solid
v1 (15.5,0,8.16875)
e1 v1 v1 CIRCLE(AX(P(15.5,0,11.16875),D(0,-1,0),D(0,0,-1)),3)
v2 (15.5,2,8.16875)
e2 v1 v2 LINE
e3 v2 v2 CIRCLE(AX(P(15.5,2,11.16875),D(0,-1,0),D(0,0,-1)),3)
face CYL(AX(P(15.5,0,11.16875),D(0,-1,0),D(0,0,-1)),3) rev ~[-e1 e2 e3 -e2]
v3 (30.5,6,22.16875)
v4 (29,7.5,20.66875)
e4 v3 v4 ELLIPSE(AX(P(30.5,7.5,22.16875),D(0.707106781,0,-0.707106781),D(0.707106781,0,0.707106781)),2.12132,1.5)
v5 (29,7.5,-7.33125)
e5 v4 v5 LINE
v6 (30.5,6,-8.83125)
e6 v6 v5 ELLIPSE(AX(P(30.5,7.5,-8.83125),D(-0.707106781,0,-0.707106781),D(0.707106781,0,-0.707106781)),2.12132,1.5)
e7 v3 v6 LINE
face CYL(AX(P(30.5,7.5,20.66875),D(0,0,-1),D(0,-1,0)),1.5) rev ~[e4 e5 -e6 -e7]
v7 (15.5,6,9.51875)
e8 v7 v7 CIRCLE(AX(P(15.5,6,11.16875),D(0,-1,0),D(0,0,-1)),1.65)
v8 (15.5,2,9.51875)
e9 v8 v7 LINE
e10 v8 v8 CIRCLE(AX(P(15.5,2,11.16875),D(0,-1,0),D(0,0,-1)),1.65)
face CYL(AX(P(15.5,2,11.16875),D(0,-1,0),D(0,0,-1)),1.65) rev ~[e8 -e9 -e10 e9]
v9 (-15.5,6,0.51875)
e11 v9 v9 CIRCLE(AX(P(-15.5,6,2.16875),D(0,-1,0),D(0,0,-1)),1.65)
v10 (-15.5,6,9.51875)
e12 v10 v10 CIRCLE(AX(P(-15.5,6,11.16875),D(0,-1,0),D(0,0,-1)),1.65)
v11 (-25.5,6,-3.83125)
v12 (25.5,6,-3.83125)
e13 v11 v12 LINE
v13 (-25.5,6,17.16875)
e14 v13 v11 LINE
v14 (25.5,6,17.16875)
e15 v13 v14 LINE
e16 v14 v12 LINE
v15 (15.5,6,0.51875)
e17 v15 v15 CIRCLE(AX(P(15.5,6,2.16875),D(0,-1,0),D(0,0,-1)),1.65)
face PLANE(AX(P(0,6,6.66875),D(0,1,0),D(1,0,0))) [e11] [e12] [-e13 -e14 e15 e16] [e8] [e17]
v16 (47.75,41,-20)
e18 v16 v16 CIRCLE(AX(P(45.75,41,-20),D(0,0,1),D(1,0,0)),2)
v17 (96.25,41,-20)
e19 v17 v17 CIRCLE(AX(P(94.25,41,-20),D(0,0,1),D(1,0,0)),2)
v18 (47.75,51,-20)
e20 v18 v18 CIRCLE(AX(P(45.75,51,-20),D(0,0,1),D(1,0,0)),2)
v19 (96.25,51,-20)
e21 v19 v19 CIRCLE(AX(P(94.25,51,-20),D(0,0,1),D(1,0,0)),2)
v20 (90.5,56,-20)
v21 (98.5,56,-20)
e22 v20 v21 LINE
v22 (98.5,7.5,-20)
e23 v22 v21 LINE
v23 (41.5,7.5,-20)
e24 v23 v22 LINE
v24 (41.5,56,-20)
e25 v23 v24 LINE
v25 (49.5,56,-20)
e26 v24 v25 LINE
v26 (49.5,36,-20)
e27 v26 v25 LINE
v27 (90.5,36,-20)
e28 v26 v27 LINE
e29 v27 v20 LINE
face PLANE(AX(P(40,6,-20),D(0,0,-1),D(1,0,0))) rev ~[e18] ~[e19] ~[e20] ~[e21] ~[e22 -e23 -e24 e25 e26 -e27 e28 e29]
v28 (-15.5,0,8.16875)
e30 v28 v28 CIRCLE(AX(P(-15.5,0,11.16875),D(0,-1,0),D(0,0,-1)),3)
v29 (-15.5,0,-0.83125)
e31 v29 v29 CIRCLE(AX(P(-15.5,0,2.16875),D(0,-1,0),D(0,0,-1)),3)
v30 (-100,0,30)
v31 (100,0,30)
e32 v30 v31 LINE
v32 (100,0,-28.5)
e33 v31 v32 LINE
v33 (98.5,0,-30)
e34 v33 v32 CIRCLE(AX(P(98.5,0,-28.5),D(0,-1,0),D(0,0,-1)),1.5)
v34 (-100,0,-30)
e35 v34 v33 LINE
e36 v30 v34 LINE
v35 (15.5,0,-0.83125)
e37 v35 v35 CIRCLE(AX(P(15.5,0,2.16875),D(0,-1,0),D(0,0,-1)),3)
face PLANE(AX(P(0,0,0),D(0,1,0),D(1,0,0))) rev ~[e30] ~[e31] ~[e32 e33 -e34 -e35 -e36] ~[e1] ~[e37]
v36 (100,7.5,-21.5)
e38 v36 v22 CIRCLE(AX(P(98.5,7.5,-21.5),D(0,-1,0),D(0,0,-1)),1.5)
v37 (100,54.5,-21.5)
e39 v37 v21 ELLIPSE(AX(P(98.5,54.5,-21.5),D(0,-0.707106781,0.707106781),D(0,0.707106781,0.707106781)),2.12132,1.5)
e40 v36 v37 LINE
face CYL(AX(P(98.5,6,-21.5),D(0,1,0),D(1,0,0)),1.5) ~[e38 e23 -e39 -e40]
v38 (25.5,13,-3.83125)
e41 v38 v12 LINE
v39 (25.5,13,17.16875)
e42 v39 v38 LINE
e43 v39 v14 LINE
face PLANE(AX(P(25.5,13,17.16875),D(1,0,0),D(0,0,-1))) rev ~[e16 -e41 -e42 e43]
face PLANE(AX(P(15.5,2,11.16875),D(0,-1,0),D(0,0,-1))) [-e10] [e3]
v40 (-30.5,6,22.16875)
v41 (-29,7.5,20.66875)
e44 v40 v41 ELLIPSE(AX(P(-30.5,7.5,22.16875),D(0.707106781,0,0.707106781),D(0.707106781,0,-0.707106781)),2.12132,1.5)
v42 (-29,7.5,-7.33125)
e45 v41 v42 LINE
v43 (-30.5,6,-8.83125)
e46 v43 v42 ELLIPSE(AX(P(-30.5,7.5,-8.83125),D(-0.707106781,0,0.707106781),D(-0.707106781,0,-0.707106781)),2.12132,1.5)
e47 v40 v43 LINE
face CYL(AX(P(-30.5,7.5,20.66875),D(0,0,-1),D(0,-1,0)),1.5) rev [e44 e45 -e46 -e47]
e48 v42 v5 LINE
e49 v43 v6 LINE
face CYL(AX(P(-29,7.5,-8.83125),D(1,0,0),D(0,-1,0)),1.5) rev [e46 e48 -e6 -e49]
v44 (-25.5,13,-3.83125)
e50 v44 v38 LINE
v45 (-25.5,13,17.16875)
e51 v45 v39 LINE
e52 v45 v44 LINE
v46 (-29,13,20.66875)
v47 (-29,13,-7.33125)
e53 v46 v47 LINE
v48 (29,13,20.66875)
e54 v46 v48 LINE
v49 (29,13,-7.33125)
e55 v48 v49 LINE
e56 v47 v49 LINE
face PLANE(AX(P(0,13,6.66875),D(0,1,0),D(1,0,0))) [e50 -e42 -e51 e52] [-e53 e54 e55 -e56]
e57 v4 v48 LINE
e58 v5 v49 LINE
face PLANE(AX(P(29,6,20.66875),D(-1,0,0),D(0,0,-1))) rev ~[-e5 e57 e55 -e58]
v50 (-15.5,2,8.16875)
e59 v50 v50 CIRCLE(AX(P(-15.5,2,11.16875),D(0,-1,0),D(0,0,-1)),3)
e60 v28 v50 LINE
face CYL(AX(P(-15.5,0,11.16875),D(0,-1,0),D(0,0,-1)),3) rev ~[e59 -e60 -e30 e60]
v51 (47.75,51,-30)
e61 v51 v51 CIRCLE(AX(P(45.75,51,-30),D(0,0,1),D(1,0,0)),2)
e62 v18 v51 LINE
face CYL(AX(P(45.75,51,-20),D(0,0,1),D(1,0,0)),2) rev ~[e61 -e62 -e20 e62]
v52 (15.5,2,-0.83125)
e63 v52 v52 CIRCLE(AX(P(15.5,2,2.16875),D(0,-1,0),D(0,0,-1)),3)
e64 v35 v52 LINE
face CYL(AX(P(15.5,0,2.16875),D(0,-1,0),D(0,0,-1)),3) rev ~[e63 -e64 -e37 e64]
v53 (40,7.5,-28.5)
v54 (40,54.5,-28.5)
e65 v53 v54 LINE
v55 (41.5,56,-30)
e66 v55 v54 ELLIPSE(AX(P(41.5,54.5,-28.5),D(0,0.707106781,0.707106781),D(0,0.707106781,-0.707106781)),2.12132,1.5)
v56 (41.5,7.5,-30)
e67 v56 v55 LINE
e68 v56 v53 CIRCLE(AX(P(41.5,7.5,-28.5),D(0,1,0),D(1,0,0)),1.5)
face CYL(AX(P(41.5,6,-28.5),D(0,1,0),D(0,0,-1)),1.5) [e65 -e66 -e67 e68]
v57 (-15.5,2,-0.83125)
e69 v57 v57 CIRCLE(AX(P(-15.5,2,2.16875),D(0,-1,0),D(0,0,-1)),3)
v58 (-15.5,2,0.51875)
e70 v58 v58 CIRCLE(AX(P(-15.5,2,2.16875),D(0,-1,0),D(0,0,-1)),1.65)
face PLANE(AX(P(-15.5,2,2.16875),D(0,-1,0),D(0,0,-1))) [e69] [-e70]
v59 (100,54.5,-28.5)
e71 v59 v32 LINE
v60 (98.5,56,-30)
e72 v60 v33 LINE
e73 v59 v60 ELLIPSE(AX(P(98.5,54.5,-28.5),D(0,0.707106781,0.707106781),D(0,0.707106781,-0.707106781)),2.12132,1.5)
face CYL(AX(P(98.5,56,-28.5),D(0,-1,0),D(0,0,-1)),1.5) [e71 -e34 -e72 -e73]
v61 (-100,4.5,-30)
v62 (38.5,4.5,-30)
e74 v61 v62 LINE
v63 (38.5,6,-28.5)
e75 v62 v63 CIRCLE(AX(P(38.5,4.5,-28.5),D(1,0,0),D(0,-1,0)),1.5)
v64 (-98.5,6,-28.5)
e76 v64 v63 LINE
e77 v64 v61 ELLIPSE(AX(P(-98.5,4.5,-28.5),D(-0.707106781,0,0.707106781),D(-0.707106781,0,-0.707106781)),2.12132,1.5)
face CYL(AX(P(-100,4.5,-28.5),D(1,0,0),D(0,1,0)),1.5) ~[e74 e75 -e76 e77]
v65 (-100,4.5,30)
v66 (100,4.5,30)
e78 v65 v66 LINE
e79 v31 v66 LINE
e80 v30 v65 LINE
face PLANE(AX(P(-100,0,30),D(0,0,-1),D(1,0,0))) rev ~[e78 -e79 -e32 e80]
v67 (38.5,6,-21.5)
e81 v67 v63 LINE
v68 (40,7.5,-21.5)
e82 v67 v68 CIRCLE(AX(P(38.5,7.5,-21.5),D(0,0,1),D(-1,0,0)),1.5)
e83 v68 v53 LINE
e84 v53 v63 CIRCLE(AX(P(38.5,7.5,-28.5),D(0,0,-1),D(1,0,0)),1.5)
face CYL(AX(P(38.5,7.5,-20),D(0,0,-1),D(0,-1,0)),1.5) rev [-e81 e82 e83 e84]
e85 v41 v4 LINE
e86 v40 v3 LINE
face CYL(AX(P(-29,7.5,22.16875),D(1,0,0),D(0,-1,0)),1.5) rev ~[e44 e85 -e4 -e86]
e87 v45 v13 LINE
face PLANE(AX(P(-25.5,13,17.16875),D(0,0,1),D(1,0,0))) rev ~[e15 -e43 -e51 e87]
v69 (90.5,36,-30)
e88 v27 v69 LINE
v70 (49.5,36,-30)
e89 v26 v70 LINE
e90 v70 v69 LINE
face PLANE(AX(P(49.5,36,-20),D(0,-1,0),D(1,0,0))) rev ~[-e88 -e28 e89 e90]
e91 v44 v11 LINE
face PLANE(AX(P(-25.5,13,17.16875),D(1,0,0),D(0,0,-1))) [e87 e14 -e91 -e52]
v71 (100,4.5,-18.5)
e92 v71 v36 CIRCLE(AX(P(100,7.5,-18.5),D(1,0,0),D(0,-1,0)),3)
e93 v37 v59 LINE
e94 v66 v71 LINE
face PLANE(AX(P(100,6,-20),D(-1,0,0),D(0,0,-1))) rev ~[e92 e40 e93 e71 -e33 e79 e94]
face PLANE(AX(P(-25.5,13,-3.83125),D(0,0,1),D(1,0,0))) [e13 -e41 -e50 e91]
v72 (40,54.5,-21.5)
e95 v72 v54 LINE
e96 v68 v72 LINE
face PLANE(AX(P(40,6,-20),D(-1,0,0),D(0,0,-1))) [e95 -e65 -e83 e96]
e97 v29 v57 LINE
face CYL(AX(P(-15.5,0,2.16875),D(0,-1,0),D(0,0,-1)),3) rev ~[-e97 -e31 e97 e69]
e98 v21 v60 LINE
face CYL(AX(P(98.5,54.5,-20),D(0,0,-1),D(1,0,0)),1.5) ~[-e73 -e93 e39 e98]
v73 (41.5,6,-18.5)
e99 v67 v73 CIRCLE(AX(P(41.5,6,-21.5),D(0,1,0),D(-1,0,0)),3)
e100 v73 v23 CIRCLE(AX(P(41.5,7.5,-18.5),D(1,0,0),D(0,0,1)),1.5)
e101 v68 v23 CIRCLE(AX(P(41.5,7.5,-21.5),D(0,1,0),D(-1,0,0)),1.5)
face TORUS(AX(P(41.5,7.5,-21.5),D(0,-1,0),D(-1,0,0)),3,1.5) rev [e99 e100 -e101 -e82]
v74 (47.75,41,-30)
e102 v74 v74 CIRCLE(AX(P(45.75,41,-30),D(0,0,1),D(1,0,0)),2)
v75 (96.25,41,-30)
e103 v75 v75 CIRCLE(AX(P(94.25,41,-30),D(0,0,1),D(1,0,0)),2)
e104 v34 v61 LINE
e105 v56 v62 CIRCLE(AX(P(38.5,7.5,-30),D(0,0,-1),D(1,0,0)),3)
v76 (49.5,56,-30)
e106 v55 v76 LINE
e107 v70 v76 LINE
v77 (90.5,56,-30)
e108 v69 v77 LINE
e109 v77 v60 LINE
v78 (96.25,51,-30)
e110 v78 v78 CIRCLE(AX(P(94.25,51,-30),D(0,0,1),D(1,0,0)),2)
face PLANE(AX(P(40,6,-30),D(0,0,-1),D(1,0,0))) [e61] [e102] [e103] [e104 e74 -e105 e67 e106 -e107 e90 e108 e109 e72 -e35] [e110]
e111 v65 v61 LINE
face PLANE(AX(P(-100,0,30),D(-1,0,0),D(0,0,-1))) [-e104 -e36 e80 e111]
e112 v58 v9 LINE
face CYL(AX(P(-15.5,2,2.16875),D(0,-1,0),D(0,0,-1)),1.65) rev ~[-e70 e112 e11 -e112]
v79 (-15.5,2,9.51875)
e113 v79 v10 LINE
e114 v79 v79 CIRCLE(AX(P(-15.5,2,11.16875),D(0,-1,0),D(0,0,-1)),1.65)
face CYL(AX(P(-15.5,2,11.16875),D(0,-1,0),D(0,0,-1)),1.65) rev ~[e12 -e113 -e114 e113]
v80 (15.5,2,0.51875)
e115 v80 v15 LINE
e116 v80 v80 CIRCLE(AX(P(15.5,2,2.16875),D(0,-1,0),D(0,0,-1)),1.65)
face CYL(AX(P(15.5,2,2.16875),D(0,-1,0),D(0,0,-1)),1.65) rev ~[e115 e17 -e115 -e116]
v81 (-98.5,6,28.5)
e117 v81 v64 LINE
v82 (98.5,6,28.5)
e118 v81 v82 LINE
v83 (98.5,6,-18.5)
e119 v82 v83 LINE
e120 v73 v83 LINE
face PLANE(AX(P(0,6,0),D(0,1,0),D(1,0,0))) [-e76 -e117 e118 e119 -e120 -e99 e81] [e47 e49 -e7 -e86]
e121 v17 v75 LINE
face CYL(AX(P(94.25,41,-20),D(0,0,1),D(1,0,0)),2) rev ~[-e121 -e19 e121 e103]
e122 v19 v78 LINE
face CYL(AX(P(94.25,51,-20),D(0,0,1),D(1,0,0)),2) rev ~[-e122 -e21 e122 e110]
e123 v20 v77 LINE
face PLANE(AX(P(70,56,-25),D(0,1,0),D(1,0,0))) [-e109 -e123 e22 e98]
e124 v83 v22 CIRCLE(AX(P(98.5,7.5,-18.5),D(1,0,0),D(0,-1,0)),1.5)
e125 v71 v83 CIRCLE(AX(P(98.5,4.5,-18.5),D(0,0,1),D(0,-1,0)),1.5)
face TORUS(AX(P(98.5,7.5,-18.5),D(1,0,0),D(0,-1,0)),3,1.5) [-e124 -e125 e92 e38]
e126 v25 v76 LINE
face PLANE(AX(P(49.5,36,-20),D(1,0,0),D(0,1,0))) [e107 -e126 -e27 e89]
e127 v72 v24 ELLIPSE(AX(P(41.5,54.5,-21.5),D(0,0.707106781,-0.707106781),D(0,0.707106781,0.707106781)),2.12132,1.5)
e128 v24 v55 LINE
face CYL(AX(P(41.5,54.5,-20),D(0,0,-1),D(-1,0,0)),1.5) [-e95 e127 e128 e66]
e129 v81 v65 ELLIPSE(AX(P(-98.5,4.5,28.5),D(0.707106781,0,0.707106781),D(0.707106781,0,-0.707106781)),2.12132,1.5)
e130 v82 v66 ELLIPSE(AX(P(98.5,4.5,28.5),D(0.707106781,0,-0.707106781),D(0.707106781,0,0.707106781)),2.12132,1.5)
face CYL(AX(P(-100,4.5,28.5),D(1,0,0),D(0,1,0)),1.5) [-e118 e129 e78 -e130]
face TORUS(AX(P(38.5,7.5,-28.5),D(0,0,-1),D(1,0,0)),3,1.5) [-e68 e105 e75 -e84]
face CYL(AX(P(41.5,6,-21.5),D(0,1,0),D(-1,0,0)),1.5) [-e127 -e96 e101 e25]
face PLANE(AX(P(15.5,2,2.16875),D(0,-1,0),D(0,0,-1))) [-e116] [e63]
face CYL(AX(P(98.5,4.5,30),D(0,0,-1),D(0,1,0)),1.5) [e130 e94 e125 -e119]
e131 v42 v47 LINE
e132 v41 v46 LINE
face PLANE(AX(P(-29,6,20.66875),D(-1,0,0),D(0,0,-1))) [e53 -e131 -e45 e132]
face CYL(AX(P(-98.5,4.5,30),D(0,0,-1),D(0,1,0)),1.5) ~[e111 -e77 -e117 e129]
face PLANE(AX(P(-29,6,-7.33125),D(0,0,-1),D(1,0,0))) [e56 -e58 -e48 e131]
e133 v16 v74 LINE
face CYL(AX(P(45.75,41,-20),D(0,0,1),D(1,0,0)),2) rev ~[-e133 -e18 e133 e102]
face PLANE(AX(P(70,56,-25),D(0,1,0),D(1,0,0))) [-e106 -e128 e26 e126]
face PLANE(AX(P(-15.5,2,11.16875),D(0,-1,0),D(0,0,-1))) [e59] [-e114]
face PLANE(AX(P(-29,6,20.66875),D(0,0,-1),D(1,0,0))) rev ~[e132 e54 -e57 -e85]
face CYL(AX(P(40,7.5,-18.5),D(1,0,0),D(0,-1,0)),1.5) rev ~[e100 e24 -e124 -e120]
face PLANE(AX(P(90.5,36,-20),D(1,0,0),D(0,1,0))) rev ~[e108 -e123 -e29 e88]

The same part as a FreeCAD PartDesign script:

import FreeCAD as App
import Part
import Sketcher

V = App.Vector


def edges_at(feature, points):
    """Names of the edges that pass closest to the given points."""
    edges = feature.Shape.Edges
    near = lambda p: min(range(len(edges)), key=lambda i: edges[i].distToShape(Part.Vertex(*p))[0])
    return sorted({f"Edge{near(p) + 1}" for p in points})


def add_polygon(sketch, points):
    """Adds a closed chain of lines whose ends are joined by coincident constraints."""
    first, n = sketch.GeometryCount, len(points)
    for a, b in zip(points, points[1:] + points[:1]):
        sketch.addGeometry(Part.LineSegment(App.Vector(*a, 0), App.Vector(*b, 0)), False)
    for i in range(n):
        sketch.addConstraint(Sketcher.Constraint("Coincident", first + i, 2, first + (i + 1) % n, 1))

doc = App.newDocument("Part")
body = doc.addObject("PartDesign::Body", "Body")

sketch1 = doc.addObject("Sketcher::SketchObject", "Sketch")
body.addObject(sketch1)
sketch1.AttachmentSupport = (doc.XZ_Plane, [""])
sketch1.MapMode = "FlatFace"
add_polygon(sketch1, [(-100, -30), (-100, 30), (100, 30), (100, -30)])
sketch1.addConstraint(Sketcher.Constraint("Vertical", 0))
sketch1.addConstraint(Sketcher.Constraint("Horizontal", 1))
sketch1.addConstraint(Sketcher.Constraint("Vertical", 2))
sketch1.addConstraint(Sketcher.Constraint("Horizontal", 3))
sketch1.addConstraint(Sketcher.Constraint("Symmetric", 0, 2, 2, 2, -1, 1))
sketch1.addConstraint(Sketcher.Constraint("DistanceX", 1, 1, 1, 2, 200.0))
sketch1.addConstraint(Sketcher.Constraint("DistanceY", 0, 1, 0, 2, 60.0))
pad1 = doc.addObject("PartDesign::Pad", "Pad")
body.addObject(pad1)
pad1.Profile = sketch1
pad1.Length = 6
pad1.Reversed = True

sketch2 = doc.addObject("Sketcher::SketchObject", "Sketch001")
body.addObject(sketch2)
sketch2.AttachmentSupport = (doc.XZ_Plane, [""])
sketch2.MapMode = "FlatFace"
sketch2.AttachmentOffset = App.Placement(V(0, 0, -6), App.Rotation())
add_polygon(sketch2, [(40, -30), (40, -20), (100, -20), (100, -30)])
sketch2.addConstraint(Sketcher.Constraint("Vertical", 0))
sketch2.addConstraint(Sketcher.Constraint("Horizontal", 1))
sketch2.addConstraint(Sketcher.Constraint("Vertical", 2))
sketch2.addConstraint(Sketcher.Constraint("Horizontal", 3))
sketch2.addConstraint(Sketcher.Constraint("DistanceX", 1, 1, 1, 2, 60.0))
sketch2.addConstraint(Sketcher.Constraint("DistanceY", 0, 1, 0, 2, 10.0))
sketch2.addConstraint(Sketcher.Constraint("DistanceX", -1, 1, 0, 2, 40.0))
sketch2.addConstraint(Sketcher.Constraint("DistanceY", 0, 2, -1, 1, 20.0))
pad2 = doc.addObject("PartDesign::Pad", "Pad001")
body.addObject(pad2)
pad2.Profile = sketch2
pad2.Length = 50
pad2.Reversed = True

sketch3 = doc.addObject("Sketcher::SketchObject", "Sketch002")
body.addObject(sketch3)
sketch3.AttachmentSupport = (doc.XY_Plane, [""])
sketch3.MapMode = "FlatFace"
sketch3.AttachmentOffset = App.Placement(V(0, 0, -20), App.Rotation())
sketch3.addGeometry(Part.Circle(V(45.8, 51, 0), V(0, 0, 1), 2), False)
sketch3.addGeometry(Part.Circle(V(45.8, 41, 0), V(0, 0, 1), 2), False)
add_polygon(sketch3, [(49.5, 56), (49.5, 36), (90.5, 36), (90.5, 56)])
sketch3.addGeometry(Part.Circle(V(94.2, 51, 0), V(0, 0, 1), 2), False)
sketch3.addGeometry(Part.Circle(V(94.2, 41, 0), V(0, 0, 1), 2), False)
sketch3.addConstraint(Sketcher.Constraint("Vertical", 2))
sketch3.addConstraint(Sketcher.Constraint("Horizontal", 3))
sketch3.addConstraint(Sketcher.Constraint("Vertical", 4))
sketch3.addConstraint(Sketcher.Constraint("Horizontal", 5))
sketch3.addConstraint(Sketcher.Constraint("Equal", 0, 1))
sketch3.addConstraint(Sketcher.Constraint("Equal", 1, 6))
sketch3.addConstraint(Sketcher.Constraint("Equal", 6, 7))
sketch3.addConstraint(Sketcher.Constraint("Horizontal", 0, 3, 6, 3))
sketch3.addConstraint(Sketcher.Constraint("Horizontal", 1, 3, 7, 3))
sketch3.addConstraint(Sketcher.Constraint("Vertical", 0, 3, 1, 3))
sketch3.addConstraint(Sketcher.Constraint("Vertical", 6, 3, 7, 3))
sketch3.addConstraint(Sketcher.Constraint("Diameter", 0, 4.0))
sketch3.addConstraint(Sketcher.Constraint("DistanceX", 3, 1, 3, 2, 41.0))
sketch3.addConstraint(Sketcher.Constraint("DistanceY", 2, 2, 2, 1, 20.0))
sketch3.addConstraint(Sketcher.Constraint("DistanceY", -1, 1, 0, 3, 51.0))
sketch3.addConstraint(Sketcher.Constraint("DistanceY", -1, 1, 1, 3, 41.0))
sketch3.addConstraint(Sketcher.Constraint("DistanceY", -1, 1, 2, 2, 36.0))
sketch3.addConstraint(Sketcher.Constraint("DistanceX", -1, 1, 2, 2, 49.5))
sketch3.addConstraint(Sketcher.Constraint("DistanceX", 0, 3, 6, 3, 48.5))
sketch3.addConstraint(Sketcher.Constraint("DistanceX", -1, 1, 0, 3, 45.75))
pocket1 = doc.addObject("PartDesign::Pocket", "Pocket")
body.addObject(pocket1)
pocket1.Profile = sketch3
pocket1.Length = 10

sketch4 = doc.addObject("Sketcher::SketchObject", "Sketch003")
body.addObject(sketch4)
sketch4.AttachmentSupport = (doc.XZ_Plane, [""])
sketch4.MapMode = "FlatFace"
sketch4.AttachmentOffset = App.Placement(V(0, 0, -6), App.Rotation())
add_polygon(sketch4, [(-29, -7), (-29, 21), (29, 21), (29, -7)])
sketch4.addConstraint(Sketcher.Constraint("Vertical", 0))
sketch4.addConstraint(Sketcher.Constraint("Horizontal", 1))
sketch4.addConstraint(Sketcher.Constraint("Vertical", 2))
sketch4.addConstraint(Sketcher.Constraint("Horizontal", 3))
sketch4.addConstraint(Sketcher.Constraint("DistanceX", 1, 1, 1, 2, 58.0))
sketch4.addConstraint(Sketcher.Constraint("DistanceY", 0, 1, 0, 2, 28.0))
sketch4.addConstraint(Sketcher.Constraint("DistanceX", 0, 2, -1, 1, 29.0))
sketch4.addConstraint(Sketcher.Constraint("DistanceY", -1, 1, 0, 2, 20.66875))
pad3 = doc.addObject("PartDesign::Pad", "Pad002")
body.addObject(pad3)
pad3.Profile = sketch4
pad3.Length = 7
pad3.Reversed = True

sketch5 = doc.addObject("Sketcher::SketchObject", "Sketch004")
body.addObject(sketch5)
sketch5.AttachmentSupport = (doc.XZ_Plane, [""])
sketch5.MapMode = "FlatFace"
sketch5.AttachmentOffset = App.Placement(V(0, 0, -13), App.Rotation())
add_polygon(sketch5, [(-26, -4), (-26, 17), (26, 17), (26, -4)])
sketch5.addConstraint(Sketcher.Constraint("Vertical", 0))
sketch5.addConstraint(Sketcher.Constraint("Horizontal", 1))
sketch5.addConstraint(Sketcher.Constraint("Vertical", 2))
sketch5.addConstraint(Sketcher.Constraint("Horizontal", 3))
sketch5.addConstraint(Sketcher.Constraint("DistanceX", 1, 1, 1, 2, 51.0))
sketch5.addConstraint(Sketcher.Constraint("DistanceY", 0, 1, 0, 2, 21.0))
sketch5.addConstraint(Sketcher.Constraint("DistanceX", 0, 2, -1, 1, 25.5))
sketch5.addConstraint(Sketcher.Constraint("DistanceY", -1, 1, 0, 2, 17.16875))
pocket2 = doc.addObject("PartDesign::Pocket", "Pocket001")
body.addObject(pocket2)
pocket2.Profile = sketch5
pocket2.Length = 7
pocket2.Reversed = True

sketch6 = doc.addObject("Sketcher::SketchObject", "Sketch005")
body.addObject(sketch6)
sketch6.AttachmentSupport = (doc.XZ_Plane, [""])
sketch6.MapMode = "FlatFace"
sketch6.addGeometry(Part.Circle(V(15.5, 2.2, 0), V(0, 0, 1), 3), False)
sketch6.addGeometry(Part.Circle(V(15.5, 11.2, 0), V(0, 0, 1), 3), False)
sketch6.addGeometry(Part.Circle(V(-15.5, 2.2, 0), V(0, 0, 1), 3), False)
sketch6.addGeometry(Part.Circle(V(-15.5, 11.2, 0), V(0, 0, 1), 3), False)
sketch6.addConstraint(Sketcher.Constraint("Equal", 0, 1))
sketch6.addConstraint(Sketcher.Constraint("Equal", 1, 2))
sketch6.addConstraint(Sketcher.Constraint("Equal", 2, 3))
sketch6.addConstraint(Sketcher.Constraint("Symmetric", 0, 3, 2, 3, -2))
sketch6.addConstraint(Sketcher.Constraint("Symmetric", 1, 3, 3, 3, -2))
sketch6.addConstraint(Sketcher.Constraint("Vertical", 0, 3, 1, 3))
sketch6.addConstraint(Sketcher.Constraint("Diameter", 0, 6.0))
sketch6.addConstraint(Sketcher.Constraint("DistanceY", 0, 3, 1, 3, 9.0))
sketch6.addConstraint(Sketcher.Constraint("DistanceX", 2, 3, 0, 3, 31.0))
sketch6.addConstraint(Sketcher.Constraint("DistanceY", -1, 1, 0, 3, 2.16875))
pocket3 = doc.addObject("PartDesign::Pocket", "Pocket002")
body.addObject(pocket3)
pocket3.Profile = sketch6
pocket3.Length = 2

sketch7 = doc.addObject("Sketcher::SketchObject", "Sketch006")
body.addObject(sketch7)
sketch7.AttachmentSupport = (doc.XZ_Plane, [""])
sketch7.MapMode = "FlatFace"
sketch7.AttachmentOffset = App.Placement(V(0, 0, -2), App.Rotation())
sketch7.addGeometry(Part.Circle(V(-15.5, 11.2, 0), V(0, 0, 1), 1.6), False)
sketch7.addGeometry(Part.Circle(V(-15.5, 2.2, 0), V(0, 0, 1), 1.6), False)
sketch7.addGeometry(Part.Circle(V(15.5, 11.2, 0), V(0, 0, 1), 1.6), False)
sketch7.addGeometry(Part.Circle(V(15.5, 2.2, 0), V(0, 0, 1), 1.6), False)
sketch7.addConstraint(Sketcher.Constraint("Equal", 0, 1))
sketch7.addConstraint(Sketcher.Constraint("Equal", 1, 2))
sketch7.addConstraint(Sketcher.Constraint("Equal", 2, 3))
sketch7.addConstraint(Sketcher.Constraint("Symmetric", 0, 3, 2, 3, -2))
sketch7.addConstraint(Sketcher.Constraint("Symmetric", 1, 3, 3, 3, -2))
sketch7.addConstraint(Sketcher.Constraint("Vertical", 0, 3, 1, 3))
sketch7.addConstraint(Sketcher.Constraint("Diameter", 0, 3.3))
sketch7.addConstraint(Sketcher.Constraint("DistanceY", 1, 3, 0, 3, 9.0))
sketch7.addConstraint(Sketcher.Constraint("DistanceX", 0, 3, 2, 3, 31.0))
sketch7.addConstraint(Sketcher.Constraint("DistanceY", -1, 1, 0, 3, 11.16875))
pocket4 = doc.addObject("PartDesign::Pocket", "Pocket003")
body.addObject(pocket4)
pocket4.Profile = sketch7
pocket4.Length = 4
doc.recompute()

fillet = doc.addObject("PartDesign::Fillet", "Fillet")
body.addObject(fillet)
fillet.Base = (pocket4, edges_at(pocket4, [
    (-29, 6, 6.669),
    (0, 6, 20.669),
    (29, 6, 6.669),
    (0, 6, -7.331),
]))
fillet.Radius = 1.5
doc.recompute()

fillet2 = doc.addObject("PartDesign::Fillet", "Fillet001")
body.addObject(fillet2)
fillet2.Base = (fillet, edges_at(fillet, [
    (-100, 6, 0),
    (-30, 6, -30),
    (0, 6, 30),
    (100, 31, -20),
    (40, 6, -25),
    (40, 31, -30),
    (70, 6, -20),
    (40, 31, -20),
    (100, 56, -25),
    (40, 56, -25),
    (100, 6, 5),
    (100, 28, -30),
]))
fillet2.Radius = 1.5

doc.recompute()
